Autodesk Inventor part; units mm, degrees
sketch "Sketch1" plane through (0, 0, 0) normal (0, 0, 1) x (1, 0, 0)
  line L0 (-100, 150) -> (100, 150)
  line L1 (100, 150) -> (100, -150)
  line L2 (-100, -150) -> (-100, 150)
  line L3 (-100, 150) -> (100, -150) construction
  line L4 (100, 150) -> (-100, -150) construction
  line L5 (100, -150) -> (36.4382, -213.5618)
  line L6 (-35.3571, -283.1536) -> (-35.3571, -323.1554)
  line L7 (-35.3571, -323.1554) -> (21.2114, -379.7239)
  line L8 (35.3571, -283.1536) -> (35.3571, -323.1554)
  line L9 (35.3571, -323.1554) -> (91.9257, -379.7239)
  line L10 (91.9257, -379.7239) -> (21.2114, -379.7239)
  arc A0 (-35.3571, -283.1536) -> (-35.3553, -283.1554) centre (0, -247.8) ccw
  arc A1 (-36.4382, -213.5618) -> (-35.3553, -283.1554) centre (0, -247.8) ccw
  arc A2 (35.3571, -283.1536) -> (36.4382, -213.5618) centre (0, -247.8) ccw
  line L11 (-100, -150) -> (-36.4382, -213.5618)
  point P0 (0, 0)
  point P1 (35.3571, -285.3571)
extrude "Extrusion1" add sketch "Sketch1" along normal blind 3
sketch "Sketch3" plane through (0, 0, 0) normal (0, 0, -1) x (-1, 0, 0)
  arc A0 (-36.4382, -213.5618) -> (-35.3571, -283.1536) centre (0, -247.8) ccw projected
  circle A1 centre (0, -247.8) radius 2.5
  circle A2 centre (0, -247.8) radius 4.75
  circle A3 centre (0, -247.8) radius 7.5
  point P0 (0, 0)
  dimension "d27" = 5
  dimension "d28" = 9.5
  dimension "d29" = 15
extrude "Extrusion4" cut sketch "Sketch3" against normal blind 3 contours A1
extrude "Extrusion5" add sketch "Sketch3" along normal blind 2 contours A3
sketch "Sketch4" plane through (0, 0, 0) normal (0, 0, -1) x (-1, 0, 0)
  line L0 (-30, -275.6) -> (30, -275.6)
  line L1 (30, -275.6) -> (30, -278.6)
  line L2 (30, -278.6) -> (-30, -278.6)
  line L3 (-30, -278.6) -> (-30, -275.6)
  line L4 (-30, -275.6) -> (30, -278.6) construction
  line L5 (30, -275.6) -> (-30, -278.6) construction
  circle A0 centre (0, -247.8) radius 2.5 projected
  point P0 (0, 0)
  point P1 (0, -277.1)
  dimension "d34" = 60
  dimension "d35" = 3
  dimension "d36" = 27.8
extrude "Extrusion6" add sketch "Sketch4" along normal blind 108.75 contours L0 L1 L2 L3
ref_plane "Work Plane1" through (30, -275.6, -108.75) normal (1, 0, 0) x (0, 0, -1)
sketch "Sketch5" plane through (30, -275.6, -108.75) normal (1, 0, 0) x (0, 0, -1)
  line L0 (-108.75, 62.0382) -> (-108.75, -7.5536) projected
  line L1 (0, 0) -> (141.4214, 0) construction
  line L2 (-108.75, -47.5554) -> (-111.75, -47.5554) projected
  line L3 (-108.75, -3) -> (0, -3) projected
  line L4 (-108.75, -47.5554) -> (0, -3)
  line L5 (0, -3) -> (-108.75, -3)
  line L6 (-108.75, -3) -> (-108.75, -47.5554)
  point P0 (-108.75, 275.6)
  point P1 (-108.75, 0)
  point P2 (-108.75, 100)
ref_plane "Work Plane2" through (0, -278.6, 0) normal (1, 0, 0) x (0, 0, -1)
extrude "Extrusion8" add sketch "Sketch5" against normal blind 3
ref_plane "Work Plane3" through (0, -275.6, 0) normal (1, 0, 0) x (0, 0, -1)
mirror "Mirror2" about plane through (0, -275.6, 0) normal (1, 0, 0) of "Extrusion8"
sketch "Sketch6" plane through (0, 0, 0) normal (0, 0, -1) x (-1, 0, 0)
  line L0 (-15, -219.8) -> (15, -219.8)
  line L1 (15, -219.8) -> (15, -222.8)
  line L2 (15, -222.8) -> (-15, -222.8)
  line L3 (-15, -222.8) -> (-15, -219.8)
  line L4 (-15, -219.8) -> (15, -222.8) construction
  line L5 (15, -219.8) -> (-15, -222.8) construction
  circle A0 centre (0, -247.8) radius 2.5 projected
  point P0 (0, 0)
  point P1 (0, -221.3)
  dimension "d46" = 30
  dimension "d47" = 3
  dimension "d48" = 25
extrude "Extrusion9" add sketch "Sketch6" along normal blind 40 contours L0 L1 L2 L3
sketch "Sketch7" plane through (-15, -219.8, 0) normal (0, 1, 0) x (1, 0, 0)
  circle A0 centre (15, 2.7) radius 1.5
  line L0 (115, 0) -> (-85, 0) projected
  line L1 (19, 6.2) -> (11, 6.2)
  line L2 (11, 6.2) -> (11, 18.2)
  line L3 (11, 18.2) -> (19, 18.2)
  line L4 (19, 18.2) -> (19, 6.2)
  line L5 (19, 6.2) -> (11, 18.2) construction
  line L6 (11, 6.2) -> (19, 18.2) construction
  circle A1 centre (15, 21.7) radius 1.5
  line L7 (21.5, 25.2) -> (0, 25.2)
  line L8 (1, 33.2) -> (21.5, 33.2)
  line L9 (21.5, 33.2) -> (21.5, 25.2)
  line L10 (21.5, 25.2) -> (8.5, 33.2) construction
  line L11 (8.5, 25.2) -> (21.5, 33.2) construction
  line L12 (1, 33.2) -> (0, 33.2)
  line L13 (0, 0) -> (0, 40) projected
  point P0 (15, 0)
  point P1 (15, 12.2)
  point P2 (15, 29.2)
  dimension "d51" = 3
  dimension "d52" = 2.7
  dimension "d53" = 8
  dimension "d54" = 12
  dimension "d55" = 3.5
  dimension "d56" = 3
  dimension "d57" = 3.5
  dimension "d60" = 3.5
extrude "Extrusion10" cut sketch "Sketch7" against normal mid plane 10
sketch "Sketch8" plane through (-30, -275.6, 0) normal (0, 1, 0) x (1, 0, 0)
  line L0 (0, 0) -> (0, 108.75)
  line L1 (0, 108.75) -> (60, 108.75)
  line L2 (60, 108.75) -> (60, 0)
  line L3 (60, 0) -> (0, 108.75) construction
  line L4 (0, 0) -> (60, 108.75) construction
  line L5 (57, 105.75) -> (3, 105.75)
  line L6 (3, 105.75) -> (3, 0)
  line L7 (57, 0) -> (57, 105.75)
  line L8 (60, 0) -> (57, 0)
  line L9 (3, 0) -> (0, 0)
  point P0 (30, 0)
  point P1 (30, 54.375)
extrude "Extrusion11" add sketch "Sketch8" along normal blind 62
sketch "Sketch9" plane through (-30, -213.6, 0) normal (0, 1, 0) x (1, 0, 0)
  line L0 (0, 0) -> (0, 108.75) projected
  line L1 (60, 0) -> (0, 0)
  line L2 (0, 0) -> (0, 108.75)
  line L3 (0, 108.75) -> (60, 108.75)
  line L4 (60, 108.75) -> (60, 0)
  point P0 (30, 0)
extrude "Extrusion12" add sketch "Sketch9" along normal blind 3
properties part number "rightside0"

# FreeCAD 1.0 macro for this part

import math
import FreeCAD as App
import Part
import Sketcher
from FreeCAD import Vector
Q = App.Units.Quantity

doc = App.newDocument("Part")
params = doc.addObject("Spreadsheet::Sheet", "Params")
for row, (alias, value) in enumerate([
    ("sketch1_radius", "50 mm"),
    ("sketch1_width", "200 mm"),
    ("sketch1_height", "300 mm"),
    ("sketch1_length", "80 mm"),
    ("pad1_length", "3 mm"),
    ("sketch2_diameter", "5 mm"),
    ("pocket1_length", "3 mm"),
    ("sketch3_diameter", "15 mm"),
    ("sketch3_diameter2", "9.5 mm"),
    ("pad2_length", "2 mm"),
    ("sketch4_width", "60 mm"),
    ("sketch4_height", "3 mm"),
    ("pad3_length", "108.75 mm"),
    ("sketch5_height", "108.75 mm"),
    ("pad4_length", "3 mm"),
    ("sketch6_width", "30 mm"),
    ("sketch6_height", "3 mm"),
    ("pad5_length", "40 mm"),
    ("sketch7_diameter", "3 mm"),
    ("sketch7_width", "8 mm"),
    ("sketch7_height", "12 mm"),
    ("sketch7_width2", "21.5 mm"),
    ("pocket2_length", "10 mm"),
    ("sketch8_width", "3 mm"),
    ("sketch8_width2", "54 mm"),
    ("sketch8_height", "108.75 mm"),
    ("pad6_length", "62 mm"),
    ("sketch9_width", "60 mm"),
    ("sketch9_height", "108.75 mm"),
    ("pad7_length", "3 mm"),
], start=1):
    params.set(f"A{row}", alias)
    params.set(f"B{row}", "=" + value)
    params.setAlias(f"B{row}", alias)

body = doc.addObject("PartDesign::Body", "Body")

# Sketch on XY plane
sketch1 = body.newObject("Sketcher::SketchObject", "Sketch")
sketch1.AttachmentSupport = (doc.getObject("XY_Plane"), [""])
sketch1.MapMode = "FlatFace"
sketch1.addGeometry(Part.LineSegment(Vector(100, 150, 0), Vector(-100, 150, 0)), False)
sketch1.addGeometry(Part.LineSegment(Vector(-100, 150, 0), Vector(-100, -150, 0)), False)
sketch1.addGeometry(Part.LineSegment(Vector(-100, -150, 0), Vector(-36, -214, 0)), False)
sketch1.addGeometry(Part.ArcOfCircle(Part.Circle(Vector(0, -248, 0), Vector(0, 0, 1), 50), math.radians(137), math.radians(225)), False)
sketch1.addGeometry(Part.LineSegment(Vector(-35, -283, 0), Vector(-35, -323, 0)), False)
sketch1.addGeometry(Part.LineSegment(Vector(-35, -323, 0), Vector(21, -380, 0)), False)
sketch1.addGeometry(Part.LineSegment(Vector(21, -380, 0), Vector(92, -380, 0)), False)
sketch1.addGeometry(Part.LineSegment(Vector(92, -380, 0), Vector(35, -323, 0)), False)
sketch1.addGeometry(Part.LineSegment(Vector(35, -323, 0), Vector(35, -283, 0)), False)
sketch1.addGeometry(Part.ArcOfCircle(Part.Circle(Vector(0, -248, 0), Vector(0, 0, 1), 50), math.radians(-45), math.radians(43)), False)
sketch1.addGeometry(Part.LineSegment(Vector(36, -214, 0), Vector(100, -150, 0)), False)
sketch1.addGeometry(Part.LineSegment(Vector(100, -150, 0), Vector(100, 150, 0)), False)
sketch1.addConstraint(Sketcher.Constraint("Coincident", 0, 2, 1, 1))
sketch1.addConstraint(Sketcher.Constraint("Coincident", 1, 2, 2, 1))
sketch1.addConstraint(Sketcher.Constraint("Coincident", 2, 2, 3, 1))
sketch1.addConstraint(Sketcher.Constraint("Coincident", 3, 2, 4, 1))
sketch1.addConstraint(Sketcher.Constraint("Coincident", 4, 2, 5, 1))
sketch1.addConstraint(Sketcher.Constraint("Coincident", 5, 2, 6, 1))
sketch1.addConstraint(Sketcher.Constraint("Coincident", 6, 2, 7, 1))
sketch1.addConstraint(Sketcher.Constraint("Coincident", 7, 2, 8, 1))
sketch1.addConstraint(Sketcher.Constraint("Coincident", 8, 2, 9, 1))
sketch1.addConstraint(Sketcher.Constraint("Coincident", 9, 2, 10, 1))
sketch1.addConstraint(Sketcher.Constraint("Coincident", 10, 2, 11, 1))
sketch1.addConstraint(Sketcher.Constraint("Coincident", 11, 2, 0, 1))
sketch1.addConstraint(Sketcher.Constraint("Horizontal", 0))
sketch1.addConstraint(Sketcher.Constraint("Vertical", 1))
sketch1.addConstraint(Sketcher.Constraint("Vertical", 4))
sketch1.addConstraint(Sketcher.Constraint("Horizontal", 6))
sketch1.addConstraint(Sketcher.Constraint("Vertical", 8))
sketch1.addConstraint(Sketcher.Constraint("Vertical", 11))
sketch1.addConstraint(Sketcher.Constraint("Coincident", 9, 3, 3, 3))
sketch1.addConstraint(Sketcher.Constraint("Equal", 3, 9))
sketch1.addConstraint(Sketcher.Constraint("Symmetric", 0, 2, 10, 2, -1, 1))
sketch1.addConstraint(Sketcher.Constraint("Symmetric", 4, 2, 7, 2, -2))
sketch1.addConstraint(Sketcher.Constraint("Symmetric", 2, 2, 9, 2, -2))
sketch1.addConstraint(Sketcher.Constraint("Parallel", 2, 5))
sketch1.addConstraint(Sketcher.Constraint("Parallel", 5, 7))
sketch1.addConstraint(Sketcher.Constraint("Perpendicular", 7, 10))
sketch1.addConstraint(Sketcher.Constraint("Horizontal", 1, 2, 10, 2))
sketch1.addConstraint(Sketcher.Constraint("Radius", 3, 50.0))
sketch1.addConstraint(Sketcher.Constraint("DistanceX", 0, 2, 0, 1, 200.0))
sketch1.addConstraint(Sketcher.Constraint("DistanceY", 1, 2, 1, 1, 300.0))
sketch1.addConstraint(Sketcher.Constraint("Distance", 5, 80.0))
sketch1.addConstraint(Sketcher.Constraint("DistanceY", 3, 3, -1, 1, 247.8))
sketch1.addConstraint(Sketcher.Constraint("DistanceX", 6, 1, 6, 2, 70.7143))
sketch1.addConstraint(Sketcher.Constraint("DistanceY", 4, 2, 4, 1, 40.0018))
sketch1.setExpression("Constraints[27]", "Params.sketch1_radius")
sketch1.setExpression("Constraints[28]", "Params.sketch1_width")
sketch1.setExpression("Constraints[29]", "Params.sketch1_height")
sketch1.setExpression("Constraints[30]", "Params.sketch1_length")
pad1 = body.newObject("PartDesign::Pad", "Pad")
pad1.Profile = sketch1
pad1.setExpression("Length", "Params.pad1_length")

# Sketch on XY plane
sketch2 = body.newObject("Sketcher::SketchObject", "Sketch001")
sketch2.AttachmentSupport = (doc.getObject("XY_Plane"), [""])
sketch2.MapMode = "FlatFace"
sketch2.addGeometry(Part.Circle(Vector(0, -247.8, 0), Vector(0, 0, 1), 2.5), False)
sketch2.addConstraint(Sketcher.Constraint("PointOnObject", 0, 3, -2))
sketch2.addConstraint(Sketcher.Constraint("Diameter", 0, 5.0))
sketch2.addConstraint(Sketcher.Constraint("DistanceY", 0, 3, -1, 1, 247.8))
sketch2.setExpression("Constraints[1]", "Params.sketch2_diameter")
pocket1 = body.newObject("PartDesign::Pocket", "Pocket")
pocket1.Profile = sketch2
pocket1.setExpression("Length", "Params.pocket1_length")
pocket1.Reversed = True

# Sketch on XY plane
sketch3 = body.newObject("Sketcher::SketchObject", "Sketch002")
sketch3.AttachmentSupport = (doc.getObject("XY_Plane"), [""])
sketch3.MapMode = "FlatFace"
sketch3.addGeometry(Part.Circle(Vector(0, -247.8, 0), Vector(0, 0, 1), 7.5), False)
sketch3.addGeometry(Part.Circle(Vector(0, -247.8, 0), Vector(0, 0, 1), 4.8), False)
sketch3.addConstraint(Sketcher.Constraint("Coincident", 1, 3, 0, 3))
sketch3.addConstraint(Sketcher.Constraint("PointOnObject", 0, 3, -2))
sketch3.addConstraint(Sketcher.Constraint("Diameter", 0, 15.0))
sketch3.addConstraint(Sketcher.Constraint("Diameter", 1, 9.5))
sketch3.addConstraint(Sketcher.Constraint("DistanceY", 0, 3, -1, 1, 247.8))
sketch3.setExpression("Constraints[2]", "Params.sketch3_diameter")
sketch3.setExpression("Constraints[3]", "Params.sketch3_diameter2")
pad2 = body.newObject("PartDesign::Pad", "Pad001")
pad2.Profile = sketch3
pad2.setExpression("Length", "Params.pad2_length")
pad2.Reversed = True

# Sketch on XY plane
sketch4 = body.newObject("Sketcher::SketchObject", "Sketch003")
sketch4.AttachmentSupport = (doc.getObject("XY_Plane"), [""])
sketch4.MapMode = "FlatFace"
sketch4.addGeometry(Part.LineSegment(Vector(-30, -275.6, 0), Vector(30, -275.6, 0)), False)
sketch4.addGeometry(Part.LineSegment(Vector(30, -275.6, 0), Vector(30, -278.6, 0)), False)
sketch4.addGeometry(Part.LineSegment(Vector(30, -278.6, 0), Vector(-30, -278.6, 0)), False)
sketch4.addGeometry(Part.LineSegment(Vector(-30, -278.6, 0), Vector(-30, -275.6, 0)), False)
sketch4.addConstraint(Sketcher.Constraint("Coincident", 0, 2, 1, 1))
sketch4.addConstraint(Sketcher.Constraint("Coincident", 1, 2, 2, 1))
sketch4.addConstraint(Sketcher.Constraint("Coincident", 2, 2, 3, 1))
sketch4.addConstraint(Sketcher.Constraint("Coincident", 3, 2, 0, 1))
sketch4.addConstraint(Sketcher.Constraint("Horizontal", 0))
sketch4.addConstraint(Sketcher.Constraint("Vertical", 1))
sketch4.addConstraint(Sketcher.Constraint("Horizontal", 2))
sketch4.addConstraint(Sketcher.Constraint("Vertical", 3))
sketch4.addConstraint(Sketcher.Constraint("DistanceX", 0, 1, 0, 2, 60.0))
sketch4.addConstraint(Sketcher.Constraint("DistanceY", 1, 2, 1, 1, 3.0))
sketch4.addConstraint(Sketcher.Constraint("DistanceX", -1, 1, 0, 2, 30.0))
sketch4.addConstraint(Sketcher.Constraint("DistanceY", 0, 2, -1, 1, 275.6))
sketch4.setExpression("Constraints[8]", "Params.sketch4_width")
sketch4.setExpression("Constraints[9]", "Params.sketch4_height")
pad3 = body.newObject("PartDesign::Pad", "Pad002")
pad3.Profile = sketch4
pad3.setExpression("Length", "Params.pad3_length")
pad3.Reversed = True

# Sketch on YZ plane
sketch5 = body.newObject("Sketcher::SketchObject", "Sketch004")
sketch5.AttachmentSupport = (doc.getObject("YZ_Plane"), [""])
sketch5.MapMode = "FlatFace"
sketch5.AttachmentOffset = App.Placement(Vector(0, 0, 30), App.Rotation())
sketch5.addGeometry(Part.LineSegment(Vector(-279, -109, 0), Vector(-279, 0, 0)), False)
sketch5.addGeometry(Part.LineSegment(Vector(-279, 0, 0), Vector(-323, 0, 0)), False)
sketch5.addGeometry(Part.LineSegment(Vector(-323, 0, 0), Vector(-279, -109, 0)), False)
sketch5.addConstraint(Sketcher.Constraint("Coincident", 0, 2, 1, 1))
sketch5.addConstraint(Sketcher.Constraint("Coincident", 1, 2, 2, 1))
sketch5.addConstraint(Sketcher.Constraint("Coincident", 2, 2, 0, 1))
sketch5.addConstraint(Sketcher.Constraint("Vertical", 0))
sketch5.addConstraint(Sketcher.Constraint("Horizontal", 1))
sketch5.addConstraint(Sketcher.Constraint("PointOnObject", 0, 2, -1))
sketch5.addConstraint(Sketcher.Constraint("DistanceY", 0, 1, 0, 2, 108.75))
sketch5.addConstraint(Sketcher.Constraint("DistanceX", 0, 2, -1, 1, 278.6))
sketch5.addConstraint(Sketcher.Constraint("Angle", 2, Q("-67.7209 deg")))
sketch5.setExpression("Constraints[6]", "Params.sketch5_height")
pad4 = body.newObject("PartDesign::Pad", "Pad003")
pad4.Profile = sketch5
pad4.setExpression("Length", "Params.pad4_length")
pad4.Reversed = True
doc.recompute()

mirrored = body.newObject("PartDesign::Mirrored", "Mirrored")
mirrored.Originals = [pad4]
mirrored.MirrorPlane = (doc.getObject("YZ_Plane"), [""])
body.Tip = mirrored

# Sketch on XY plane
sketch6 = body.newObject("Sketcher::SketchObject", "Sketch005")
sketch6.AttachmentSupport = (doc.getObject("XY_Plane"), [""])
sketch6.MapMode = "FlatFace"
sketch6.addGeometry(Part.LineSegment(Vector(-15, -219.8, 0), Vector(15, -219.8, 0)), False)
sketch6.addGeometry(Part.LineSegment(Vector(15, -219.8, 0), Vector(15, -222.8, 0)), False)
sketch6.addGeometry(Part.LineSegment(Vector(15, -222.8, 0), Vector(-15, -222.8, 0)), False)
sketch6.addGeometry(Part.LineSegment(Vector(-15, -222.8, 0), Vector(-15, -219.8, 0)), False)
sketch6.addConstraint(Sketcher.Constraint("Coincident", 0, 2, 1, 1))
sketch6.addConstraint(Sketcher.Constraint("Coincident", 1, 2, 2, 1))
sketch6.addConstraint(Sketcher.Constraint("Coincident", 2, 2, 3, 1))
sketch6.addConstraint(Sketcher.Constraint("Coincident", 3, 2, 0, 1))
sketch6.addConstraint(Sketcher.Constraint("Horizontal", 0))
sketch6.addConstraint(Sketcher.Constraint("Vertical", 1))
sketch6.addConstraint(Sketcher.Constraint("Horizontal", 2))
sketch6.addConstraint(Sketcher.Constraint("Vertical", 3))
sketch6.addConstraint(Sketcher.Constraint("DistanceX", 0, 1, 0, 2, 30.0))
sketch6.addConstraint(Sketcher.Constraint("DistanceY", 1, 2, 1, 1, 3.0))
sketch6.addConstraint(Sketcher.Constraint("DistanceX", -1, 1, 0, 2, 15.0))
sketch6.addConstraint(Sketcher.Constraint("DistanceY", 0, 2, -1, 1, 219.8))
sketch6.setExpression("Constraints[8]", "Params.sketch6_width")
sketch6.setExpression("Constraints[9]", "Params.sketch6_height")
pad5 = body.newObject("PartDesign::Pad", "Pad004")
pad5.Profile = sketch6
pad5.setExpression("Length", "Params.pad5_length")
pad5.Reversed = True

# Sketch on XZ plane
sketch7 = body.newObject("Sketcher::SketchObject", "Sketch006")
sketch7.AttachmentSupport = (doc.getObject("XZ_Plane"), [""])
sketch7.MapMode = "FlatFace"
sketch7.AttachmentOffset = App.Placement(Vector(0, 0, 219.8), App.Rotation())
sketch7.addGeometry(Part.Circle(Vector(0, -2.7, 0), Vector(0, 0, 1), 1.5), False)
sketch7.addGeometry(Part.LineSegment(Vector(-4, -6.2, 0), Vector(4, -6.2, 0)), False)
sketch7.addGeometry(Part.LineSegment(Vector(4, -6.2, 0), Vector(4, -18.2, 0)), False)
sketch7.addGeometry(Part.LineSegment(Vector(4, -18.2, 0), Vector(-4, -18.2, 0)), False)
sketch7.addGeometry(Part.LineSegment(Vector(-4, -18.2, 0), Vector(-4, -6.2, 0)), False)
sketch7.addGeometry(Part.Circle(Vector(0, -21.7, 0), Vector(0, 0, 1), 1.5), False)
sketch7.addGeometry(Part.LineSegment(Vector(-15, -25.2, 0), Vector(6.5, -25.2, 0)), False)
sketch7.addGeometry(Part.LineSegment(Vector(6.5, -25.2, 0), Vector(6.5, -33.2, 0)), False)
sketch7.addGeometry(Part.LineSegment(Vector(6.5, -33.2, 0), Vector(-15, -33.2, 0)), False)
sketch7.addGeometry(Part.LineSegment(Vector(-15, -33.2, 0), Vector(-15, -25.2, 0)), False)
sketch7.addConstraint(Sketcher.Constraint("Coincident", 1, 2, 2, 1))
sketch7.addConstraint(Sketcher.Constraint("Coincident", 2, 2, 3, 1))
sketch7.addConstraint(Sketcher.Constraint("Coincident", 3, 2, 4, 1))
sketch7.addConstraint(Sketcher.Constraint("Coincident", 4, 2, 1, 1))
sketch7.addConstraint(Sketcher.Constraint("Coincident", 6, 2, 7, 1))
sketch7.addConstraint(Sketcher.Constraint("Coincident", 7, 2, 8, 1))
sketch7.addConstraint(Sketcher.Constraint("Coincident", 8, 2, 9, 1))
sketch7.addConstraint(Sketcher.Constraint("Coincident", 9, 2, 6, 1))
sketch7.addConstraint(Sketcher.Constraint("Horizontal", 1))
sketch7.addConstraint(Sketcher.Constraint("Vertical", 2))
sketch7.addConstraint(Sketcher.Constraint("Horizontal", 3))
sketch7.addConstraint(Sketcher.Constraint("Vertical", 4))
sketch7.addConstraint(Sketcher.Constraint("Horizontal", 6))
sketch7.addConstraint(Sketcher.Constraint("Vertical", 7))
sketch7.addConstraint(Sketcher.Constraint("Horizontal", 8))
sketch7.addConstraint(Sketcher.Constraint("Vertical", 9))
sketch7.addConstraint(Sketcher.Constraint("Equal", 0, 5))
sketch7.addConstraint(Sketcher.Constraint("PointOnObject", 0, 3, -2))
sketch7.addConstraint(Sketcher.Constraint("PointOnObject", 5, 3, -2))
sketch7.addConstraint(Sketcher.Constraint("Equal", 3, 7))
sketch7.addConstraint(Sketcher.Constraint("Diameter", 0, 3.0))
sketch7.addConstraint(Sketcher.Constraint("DistanceX", 1, 1, 1, 2, 8.0))
sketch7.addConstraint(Sketcher.Constraint("DistanceY", 2, 2, 2, 1, 12.0))
sketch7.addConstraint(Sketcher.Constraint("DistanceY", 0, 3, -1, 1, 2.7))
sketch7.addConstraint(Sketcher.Constraint("DistanceY", 1, 2, 0, 3, 3.5))
sketch7.addConstraint(Sketcher.Constraint("DistanceY", 5, 3, 2, 2, 3.5))
sketch7.addConstraint(Sketcher.Constraint("DistanceY", 6, 2, 5, 3, 3.5))
sketch7.addConstraint(Sketcher.Constraint("DistanceX", 6, 1, 6, 2, 21.5))
sketch7.addConstraint(Sketcher.Constraint("DistanceX", -1, 1, 1, 2, 4.0))
sketch7.addConstraint(Sketcher.Constraint("DistanceX", 8, 2, -1, 1, 15.0))
sketch7.setExpression("Constraints[20]", "Params.sketch7_diameter")
sketch7.setExpression("Constraints[21]", "Params.sketch7_width")
sketch7.setExpression("Constraints[22]", "Params.sketch7_height")
sketch7.setExpression("Constraints[27]", "Params.sketch7_width2")
pocket2 = body.newObject("PartDesign::Pocket", "Pocket001")
pocket2.Profile = sketch7
pocket2.setExpression("Length", "Params.pocket2_length")
pocket2.Midplane = True

# Sketch on XZ plane
sketch8 = body.newObject("Sketcher::SketchObject", "Sketch007")
sketch8.AttachmentSupport = (doc.getObject("XZ_Plane"), [""])
sketch8.MapMode = "FlatFace"
sketch8.AttachmentOffset = App.Placement(Vector(0, 0, 275.6), App.Rotation())
sketch8.addGeometry(Part.LineSegment(Vector(-30, -108.8, 0), Vector(-30, 0, 0)), False)
sketch8.addGeometry(Part.LineSegment(Vector(-30, 0, 0), Vector(-27, 0, 0)), False)
sketch8.addGeometry(Part.LineSegment(Vector(-27, 0, 0), Vector(-27, -105.8, 0)), False)
sketch8.addGeometry(Part.LineSegment(Vector(-27, -105.8, 0), Vector(27, -105.8, 0)), False)
sketch8.addGeometry(Part.LineSegment(Vector(27, -105.8, 0), Vector(27, 0, 0)), False)
sketch8.addGeometry(Part.LineSegment(Vector(27, 0, 0), Vector(30, 0, 0)), False)
sketch8.addGeometry(Part.LineSegment(Vector(30, 0, 0), Vector(30, -108.8, 0)), False)
sketch8.addGeometry(Part.LineSegment(Vector(30, -108.8, 0), Vector(-30, -108.8, 0)), False)
sketch8.addConstraint(Sketcher.Constraint("Coincident", 0, 2, 1, 1))
sketch8.addConstraint(Sketcher.Constraint("Coincident", 1, 2, 2, 1))
sketch8.addConstraint(Sketcher.Constraint("Coincident", 2, 2, 3, 1))
sketch8.addConstraint(Sketcher.Constraint("Coincident", 3, 2, 4, 1))
sketch8.addConstraint(Sketcher.Constraint("Coincident", 4, 2, 5, 1))
sketch8.addConstraint(Sketcher.Constraint("Coincident", 5, 2, 6, 1))
sketch8.addConstraint(Sketcher.Constraint("Coincident", 6, 2, 7, 1))
sketch8.addConstraint(Sketcher.Constraint("Coincident", 7, 2, 0, 1))
sketch8.addConstraint(Sketcher.Constraint("Vertical", 0))
sketch8.addConstraint(Sketcher.Constraint("Horizontal", 1))
sketch8.addConstraint(Sketcher.Constraint("Vertical", 2))
sketch8.addConstraint(Sketcher.Constraint("Horizontal", 3))
sketch8.addConstraint(Sketcher.Constraint("Vertical", 4))
sketch8.addConstraint(Sketcher.Constraint("Horizontal", 5))
sketch8.addConstraint(Sketcher.Constraint("Vertical", 6))
sketch8.addConstraint(Sketcher.Constraint("Horizontal", 7))
sketch8.addConstraint(Sketcher.Constraint("Symmetric", 1, 2, 4, 2, -1, 1))
sketch8.addConstraint(Sketcher.Constraint("Symmetric", 0, 2, 5, 2, -2))
sketch8.addConstraint(Sketcher.Constraint("DistanceX", 1, 1, 1, 2, 3.0))
sketch8.addConstraint(Sketcher.Constraint("DistanceX", 3, 1, 3, 2, 54.0))
sketch8.addConstraint(Sketcher.Constraint("DistanceY", 6, 2, 3, 2, 3.0))
sketch8.addConstraint(Sketcher.Constraint("DistanceY", 0, 1, 0, 2, 108.75))
sketch8.setExpression("Constraints[18]", "Params.sketch8_width")
sketch8.setExpression("Constraints[19]", "Params.sketch8_width2")
sketch8.setExpression("Constraints[21]", "Params.sketch8_height")
pad6 = body.newObject("PartDesign::Pad", "Pad005")
pad6.Profile = sketch8
pad6.setExpression("Length", "Params.pad6_length")
pad6.Reversed = True

# Sketch on XZ plane
sketch9 = body.newObject("Sketcher::SketchObject", "Sketch008")
sketch9.AttachmentSupport = (doc.getObject("XZ_Plane"), [""])
sketch9.MapMode = "FlatFace"
sketch9.AttachmentOffset = App.Placement(Vector(0, 0, 213.6), App.Rotation())
sketch9.addGeometry(Part.LineSegment(Vector(-30, -109, 0), Vector(-30, 0, 0)), False)
sketch9.addGeometry(Part.LineSegment(Vector(-30, 0, 0), Vector(30, 0, 0)), False)
sketch9.addGeometry(Part.LineSegment(Vector(30, 0, 0), Vector(30, -109, 0)), False)
sketch9.addGeometry(Part.LineSegment(Vector(30, -109, 0), Vector(-30, -109, 0)), False)
sketch9.addConstraint(Sketcher.Constraint("Coincident", 0, 2, 1, 1))
sketch9.addConstraint(Sketcher.Constraint("Coincident", 1, 2, 2, 1))
sketch9.addConstraint(Sketcher.Constraint("Coincident", 2, 2, 3, 1))
sketch9.addConstraint(Sketcher.Constraint("Coincident", 3, 2, 0, 1))
sketch9.addConstraint(Sketcher.Constraint("Vertical", 0))
sketch9.addConstraint(Sketcher.Constraint("Horizontal", 1))
sketch9.addConstraint(Sketcher.Constraint("Vertical", 2))
sketch9.addConstraint(Sketcher.Constraint("Horizontal", 3))
sketch9.addConstraint(Sketcher.Constraint("Symmetric", 0, 2, 1, 2, -1, 1))
sketch9.addConstraint(Sketcher.Constraint("DistanceX", 1, 1, 1, 2, 60.0))
sketch9.addConstraint(Sketcher.Constraint("DistanceY", 0, 1, 0, 2, 108.75))
sketch9.setExpression("Constraints[9]", "Params.sketch9_width")
sketch9.setExpression("Constraints[10]", "Params.sketch9_height")
pad7 = body.newObject("PartDesign::Pad", "Pad006")
pad7.Profile = sketch9
pad7.setExpression("Length", "Params.pad7_length")
pad7.Reversed = True

doc.recompute()
